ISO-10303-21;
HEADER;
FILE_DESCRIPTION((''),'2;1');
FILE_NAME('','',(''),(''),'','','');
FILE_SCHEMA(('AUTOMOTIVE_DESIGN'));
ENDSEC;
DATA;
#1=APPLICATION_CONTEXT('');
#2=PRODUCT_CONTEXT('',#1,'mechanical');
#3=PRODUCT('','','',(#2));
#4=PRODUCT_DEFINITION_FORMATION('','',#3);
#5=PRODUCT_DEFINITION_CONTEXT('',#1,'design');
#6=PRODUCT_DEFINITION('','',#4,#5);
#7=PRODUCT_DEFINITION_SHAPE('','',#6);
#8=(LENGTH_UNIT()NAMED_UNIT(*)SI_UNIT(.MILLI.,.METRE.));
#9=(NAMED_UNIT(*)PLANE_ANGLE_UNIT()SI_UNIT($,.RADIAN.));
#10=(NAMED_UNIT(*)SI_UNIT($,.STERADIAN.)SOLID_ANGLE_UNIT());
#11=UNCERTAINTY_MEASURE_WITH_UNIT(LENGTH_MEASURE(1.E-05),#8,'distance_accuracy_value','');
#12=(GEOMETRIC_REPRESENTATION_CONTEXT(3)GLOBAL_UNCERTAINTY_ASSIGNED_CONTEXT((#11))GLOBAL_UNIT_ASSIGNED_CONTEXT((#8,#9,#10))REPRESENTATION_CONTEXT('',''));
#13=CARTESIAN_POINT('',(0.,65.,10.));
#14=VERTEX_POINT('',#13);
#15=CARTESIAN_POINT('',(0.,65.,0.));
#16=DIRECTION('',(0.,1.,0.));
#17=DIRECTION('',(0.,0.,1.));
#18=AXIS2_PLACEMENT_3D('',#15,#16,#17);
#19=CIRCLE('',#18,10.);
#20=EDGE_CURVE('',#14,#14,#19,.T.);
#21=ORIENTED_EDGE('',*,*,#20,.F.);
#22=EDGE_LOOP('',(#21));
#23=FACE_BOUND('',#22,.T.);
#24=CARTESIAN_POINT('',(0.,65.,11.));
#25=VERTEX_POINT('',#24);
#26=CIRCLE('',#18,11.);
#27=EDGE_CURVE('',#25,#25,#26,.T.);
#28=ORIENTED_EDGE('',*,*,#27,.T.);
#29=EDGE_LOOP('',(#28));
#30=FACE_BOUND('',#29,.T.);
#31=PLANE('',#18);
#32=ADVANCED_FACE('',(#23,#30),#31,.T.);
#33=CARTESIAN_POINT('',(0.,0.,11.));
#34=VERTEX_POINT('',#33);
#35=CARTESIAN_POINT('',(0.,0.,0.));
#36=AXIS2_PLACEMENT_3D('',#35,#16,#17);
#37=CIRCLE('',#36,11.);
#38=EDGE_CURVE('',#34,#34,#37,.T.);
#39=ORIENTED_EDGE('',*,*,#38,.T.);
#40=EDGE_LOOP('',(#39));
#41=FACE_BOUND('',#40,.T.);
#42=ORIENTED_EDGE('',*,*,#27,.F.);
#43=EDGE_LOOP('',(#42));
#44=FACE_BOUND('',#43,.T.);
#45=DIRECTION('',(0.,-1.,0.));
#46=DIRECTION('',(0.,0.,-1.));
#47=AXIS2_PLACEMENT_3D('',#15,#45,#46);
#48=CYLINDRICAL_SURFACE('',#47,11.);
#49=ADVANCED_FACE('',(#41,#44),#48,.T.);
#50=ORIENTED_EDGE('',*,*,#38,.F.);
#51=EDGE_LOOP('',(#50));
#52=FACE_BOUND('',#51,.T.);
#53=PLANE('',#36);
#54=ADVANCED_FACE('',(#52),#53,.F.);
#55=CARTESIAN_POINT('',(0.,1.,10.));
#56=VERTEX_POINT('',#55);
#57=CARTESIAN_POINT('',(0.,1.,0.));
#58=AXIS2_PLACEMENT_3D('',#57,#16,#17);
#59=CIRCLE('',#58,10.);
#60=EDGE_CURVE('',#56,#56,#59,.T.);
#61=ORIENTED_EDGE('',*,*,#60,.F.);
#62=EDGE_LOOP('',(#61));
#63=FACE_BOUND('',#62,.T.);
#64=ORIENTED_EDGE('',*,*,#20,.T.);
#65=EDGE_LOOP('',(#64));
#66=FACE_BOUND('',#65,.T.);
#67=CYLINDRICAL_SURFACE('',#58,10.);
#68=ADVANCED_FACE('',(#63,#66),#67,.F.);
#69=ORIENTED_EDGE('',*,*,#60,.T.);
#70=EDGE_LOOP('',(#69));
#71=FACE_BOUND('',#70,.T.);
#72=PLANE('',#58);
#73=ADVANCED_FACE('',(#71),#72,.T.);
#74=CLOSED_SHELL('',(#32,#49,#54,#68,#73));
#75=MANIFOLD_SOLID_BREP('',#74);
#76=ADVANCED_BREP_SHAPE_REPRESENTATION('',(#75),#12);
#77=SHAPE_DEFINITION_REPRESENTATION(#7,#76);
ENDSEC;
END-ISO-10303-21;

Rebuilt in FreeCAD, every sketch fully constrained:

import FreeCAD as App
import Part
import Sketcher
Q = App.Units.Quantity

doc = App.newDocument("Part")
body = doc.addObject("PartDesign::Body", "Body")

sketch1 = doc.addObject("Sketcher::SketchObject", "Sketch")
body.addObject(sketch1)
sketch1.AttachmentSupport = (doc.XZ_Plane, [""])
sketch1.MapMode = "FlatFace"
sketch1.addGeometry(Part.Circle(App.Vector(0, 0, 0), App.Vector(0, 0, 1), 11), False)
sketch1.addConstraint(Sketcher.Constraint("Coincident", 0, 3, -1, 1))
sketch1.addConstraint(Sketcher.Constraint("Diameter", 0, Q("22 mm")))
pad1 = doc.addObject("PartDesign::Pad", "Pad")
body.addObject(pad1)
pad1.Profile = sketch1
pad1.Length = 65
pad1.Reversed = True

sketch2 = doc.addObject("Sketcher::SketchObject", "Sketch001")
body.addObject(sketch2)
sketch2.AttachmentSupport = (doc.XZ_Plane, [""])
sketch2.MapMode = "FlatFace"
sketch2.AttachmentOffset = App.Placement(App.Vector(0, 0, -65), App.Rotation())
sketch2.addGeometry(Part.Circle(App.Vector(0, 0, 0), App.Vector(0, 0, 1), 10), False)
sketch2.addConstraint(Sketcher.Constraint("Coincident", 0, 3, -1, 1))
sketch2.addConstraint(Sketcher.Constraint("Diameter", 0, Q("20 mm")))
pocket1 = doc.addObject("PartDesign::Pocket", "Pocket")
body.addObject(pocket1)
pocket1.Profile = sketch2
pocket1.Length = 64
pocket1.Reversed = True

doc.recompute()
